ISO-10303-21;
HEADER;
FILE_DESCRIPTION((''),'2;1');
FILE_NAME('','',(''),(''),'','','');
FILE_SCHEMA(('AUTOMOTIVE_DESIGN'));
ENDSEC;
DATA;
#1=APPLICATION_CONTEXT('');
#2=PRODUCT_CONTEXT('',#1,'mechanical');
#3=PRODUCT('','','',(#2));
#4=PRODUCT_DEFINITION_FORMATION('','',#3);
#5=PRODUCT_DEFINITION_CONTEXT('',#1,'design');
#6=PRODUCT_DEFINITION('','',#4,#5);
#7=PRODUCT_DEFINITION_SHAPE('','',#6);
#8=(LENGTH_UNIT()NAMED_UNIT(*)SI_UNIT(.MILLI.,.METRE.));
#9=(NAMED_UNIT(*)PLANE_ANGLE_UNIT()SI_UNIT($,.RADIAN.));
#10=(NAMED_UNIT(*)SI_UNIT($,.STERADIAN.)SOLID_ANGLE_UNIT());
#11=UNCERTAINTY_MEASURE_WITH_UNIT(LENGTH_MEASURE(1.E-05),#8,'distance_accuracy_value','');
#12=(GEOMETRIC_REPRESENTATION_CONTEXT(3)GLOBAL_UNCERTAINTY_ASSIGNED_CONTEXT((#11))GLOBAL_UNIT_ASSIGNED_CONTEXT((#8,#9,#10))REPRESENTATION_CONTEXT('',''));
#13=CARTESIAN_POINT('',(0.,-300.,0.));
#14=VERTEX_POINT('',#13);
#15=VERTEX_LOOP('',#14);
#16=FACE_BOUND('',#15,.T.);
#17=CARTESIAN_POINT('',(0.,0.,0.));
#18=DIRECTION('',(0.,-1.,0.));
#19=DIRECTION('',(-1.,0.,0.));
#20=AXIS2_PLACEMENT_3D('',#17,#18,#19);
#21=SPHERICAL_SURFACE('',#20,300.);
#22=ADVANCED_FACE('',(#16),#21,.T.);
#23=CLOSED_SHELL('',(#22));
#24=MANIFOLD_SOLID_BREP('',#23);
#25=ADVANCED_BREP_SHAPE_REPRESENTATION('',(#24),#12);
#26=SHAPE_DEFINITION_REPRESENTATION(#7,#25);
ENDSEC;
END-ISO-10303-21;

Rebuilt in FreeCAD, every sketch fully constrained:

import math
import FreeCAD as App
import Part
import Sketcher
Q = App.Units.Quantity

doc = App.newDocument("Part")
body = doc.addObject("PartDesign::Body", "Body")

# Sketch on XY plane
sketch1 = body.newObject("Sketcher::SketchObject", "Sketch")
sketch1.AttachmentSupport = (doc.getObject("XY_Plane"), [""])
sketch1.MapMode = "FlatFace"
sketch1.addGeometry([
    Part.LineSegment(App.Vector(0, 300, 0), App.Vector(0, -300, 0)),
    Part.ArcOfCircle(Part.Circle(App.Vector(0, 0, 0), App.Vector(0, 0, 1), 300), math.radians(-90), math.radians(90)),
], False)
sketch1.addConstraint([
    Sketcher.Constraint("Coincident", 0, 1, 1, 2),
    Sketcher.Constraint("Coincident", 1, 1, 0, 2),
    Sketcher.Constraint("Vertical", 0),
    Sketcher.Constraint("Coincident", 1, 3, -1, 1),
    Sketcher.Constraint("PointOnObject", 0, 1, -2),
    Sketcher.Constraint("Radius", 1, Q("300 mm")),
])
revolution = body.newObject("PartDesign::Revolution", "Revolution")
revolution.Profile = sketch1
revolution.ReferenceAxis = (sketch1, ["V_Axis"])
revolution.Angle = 360

doc.recompute()
